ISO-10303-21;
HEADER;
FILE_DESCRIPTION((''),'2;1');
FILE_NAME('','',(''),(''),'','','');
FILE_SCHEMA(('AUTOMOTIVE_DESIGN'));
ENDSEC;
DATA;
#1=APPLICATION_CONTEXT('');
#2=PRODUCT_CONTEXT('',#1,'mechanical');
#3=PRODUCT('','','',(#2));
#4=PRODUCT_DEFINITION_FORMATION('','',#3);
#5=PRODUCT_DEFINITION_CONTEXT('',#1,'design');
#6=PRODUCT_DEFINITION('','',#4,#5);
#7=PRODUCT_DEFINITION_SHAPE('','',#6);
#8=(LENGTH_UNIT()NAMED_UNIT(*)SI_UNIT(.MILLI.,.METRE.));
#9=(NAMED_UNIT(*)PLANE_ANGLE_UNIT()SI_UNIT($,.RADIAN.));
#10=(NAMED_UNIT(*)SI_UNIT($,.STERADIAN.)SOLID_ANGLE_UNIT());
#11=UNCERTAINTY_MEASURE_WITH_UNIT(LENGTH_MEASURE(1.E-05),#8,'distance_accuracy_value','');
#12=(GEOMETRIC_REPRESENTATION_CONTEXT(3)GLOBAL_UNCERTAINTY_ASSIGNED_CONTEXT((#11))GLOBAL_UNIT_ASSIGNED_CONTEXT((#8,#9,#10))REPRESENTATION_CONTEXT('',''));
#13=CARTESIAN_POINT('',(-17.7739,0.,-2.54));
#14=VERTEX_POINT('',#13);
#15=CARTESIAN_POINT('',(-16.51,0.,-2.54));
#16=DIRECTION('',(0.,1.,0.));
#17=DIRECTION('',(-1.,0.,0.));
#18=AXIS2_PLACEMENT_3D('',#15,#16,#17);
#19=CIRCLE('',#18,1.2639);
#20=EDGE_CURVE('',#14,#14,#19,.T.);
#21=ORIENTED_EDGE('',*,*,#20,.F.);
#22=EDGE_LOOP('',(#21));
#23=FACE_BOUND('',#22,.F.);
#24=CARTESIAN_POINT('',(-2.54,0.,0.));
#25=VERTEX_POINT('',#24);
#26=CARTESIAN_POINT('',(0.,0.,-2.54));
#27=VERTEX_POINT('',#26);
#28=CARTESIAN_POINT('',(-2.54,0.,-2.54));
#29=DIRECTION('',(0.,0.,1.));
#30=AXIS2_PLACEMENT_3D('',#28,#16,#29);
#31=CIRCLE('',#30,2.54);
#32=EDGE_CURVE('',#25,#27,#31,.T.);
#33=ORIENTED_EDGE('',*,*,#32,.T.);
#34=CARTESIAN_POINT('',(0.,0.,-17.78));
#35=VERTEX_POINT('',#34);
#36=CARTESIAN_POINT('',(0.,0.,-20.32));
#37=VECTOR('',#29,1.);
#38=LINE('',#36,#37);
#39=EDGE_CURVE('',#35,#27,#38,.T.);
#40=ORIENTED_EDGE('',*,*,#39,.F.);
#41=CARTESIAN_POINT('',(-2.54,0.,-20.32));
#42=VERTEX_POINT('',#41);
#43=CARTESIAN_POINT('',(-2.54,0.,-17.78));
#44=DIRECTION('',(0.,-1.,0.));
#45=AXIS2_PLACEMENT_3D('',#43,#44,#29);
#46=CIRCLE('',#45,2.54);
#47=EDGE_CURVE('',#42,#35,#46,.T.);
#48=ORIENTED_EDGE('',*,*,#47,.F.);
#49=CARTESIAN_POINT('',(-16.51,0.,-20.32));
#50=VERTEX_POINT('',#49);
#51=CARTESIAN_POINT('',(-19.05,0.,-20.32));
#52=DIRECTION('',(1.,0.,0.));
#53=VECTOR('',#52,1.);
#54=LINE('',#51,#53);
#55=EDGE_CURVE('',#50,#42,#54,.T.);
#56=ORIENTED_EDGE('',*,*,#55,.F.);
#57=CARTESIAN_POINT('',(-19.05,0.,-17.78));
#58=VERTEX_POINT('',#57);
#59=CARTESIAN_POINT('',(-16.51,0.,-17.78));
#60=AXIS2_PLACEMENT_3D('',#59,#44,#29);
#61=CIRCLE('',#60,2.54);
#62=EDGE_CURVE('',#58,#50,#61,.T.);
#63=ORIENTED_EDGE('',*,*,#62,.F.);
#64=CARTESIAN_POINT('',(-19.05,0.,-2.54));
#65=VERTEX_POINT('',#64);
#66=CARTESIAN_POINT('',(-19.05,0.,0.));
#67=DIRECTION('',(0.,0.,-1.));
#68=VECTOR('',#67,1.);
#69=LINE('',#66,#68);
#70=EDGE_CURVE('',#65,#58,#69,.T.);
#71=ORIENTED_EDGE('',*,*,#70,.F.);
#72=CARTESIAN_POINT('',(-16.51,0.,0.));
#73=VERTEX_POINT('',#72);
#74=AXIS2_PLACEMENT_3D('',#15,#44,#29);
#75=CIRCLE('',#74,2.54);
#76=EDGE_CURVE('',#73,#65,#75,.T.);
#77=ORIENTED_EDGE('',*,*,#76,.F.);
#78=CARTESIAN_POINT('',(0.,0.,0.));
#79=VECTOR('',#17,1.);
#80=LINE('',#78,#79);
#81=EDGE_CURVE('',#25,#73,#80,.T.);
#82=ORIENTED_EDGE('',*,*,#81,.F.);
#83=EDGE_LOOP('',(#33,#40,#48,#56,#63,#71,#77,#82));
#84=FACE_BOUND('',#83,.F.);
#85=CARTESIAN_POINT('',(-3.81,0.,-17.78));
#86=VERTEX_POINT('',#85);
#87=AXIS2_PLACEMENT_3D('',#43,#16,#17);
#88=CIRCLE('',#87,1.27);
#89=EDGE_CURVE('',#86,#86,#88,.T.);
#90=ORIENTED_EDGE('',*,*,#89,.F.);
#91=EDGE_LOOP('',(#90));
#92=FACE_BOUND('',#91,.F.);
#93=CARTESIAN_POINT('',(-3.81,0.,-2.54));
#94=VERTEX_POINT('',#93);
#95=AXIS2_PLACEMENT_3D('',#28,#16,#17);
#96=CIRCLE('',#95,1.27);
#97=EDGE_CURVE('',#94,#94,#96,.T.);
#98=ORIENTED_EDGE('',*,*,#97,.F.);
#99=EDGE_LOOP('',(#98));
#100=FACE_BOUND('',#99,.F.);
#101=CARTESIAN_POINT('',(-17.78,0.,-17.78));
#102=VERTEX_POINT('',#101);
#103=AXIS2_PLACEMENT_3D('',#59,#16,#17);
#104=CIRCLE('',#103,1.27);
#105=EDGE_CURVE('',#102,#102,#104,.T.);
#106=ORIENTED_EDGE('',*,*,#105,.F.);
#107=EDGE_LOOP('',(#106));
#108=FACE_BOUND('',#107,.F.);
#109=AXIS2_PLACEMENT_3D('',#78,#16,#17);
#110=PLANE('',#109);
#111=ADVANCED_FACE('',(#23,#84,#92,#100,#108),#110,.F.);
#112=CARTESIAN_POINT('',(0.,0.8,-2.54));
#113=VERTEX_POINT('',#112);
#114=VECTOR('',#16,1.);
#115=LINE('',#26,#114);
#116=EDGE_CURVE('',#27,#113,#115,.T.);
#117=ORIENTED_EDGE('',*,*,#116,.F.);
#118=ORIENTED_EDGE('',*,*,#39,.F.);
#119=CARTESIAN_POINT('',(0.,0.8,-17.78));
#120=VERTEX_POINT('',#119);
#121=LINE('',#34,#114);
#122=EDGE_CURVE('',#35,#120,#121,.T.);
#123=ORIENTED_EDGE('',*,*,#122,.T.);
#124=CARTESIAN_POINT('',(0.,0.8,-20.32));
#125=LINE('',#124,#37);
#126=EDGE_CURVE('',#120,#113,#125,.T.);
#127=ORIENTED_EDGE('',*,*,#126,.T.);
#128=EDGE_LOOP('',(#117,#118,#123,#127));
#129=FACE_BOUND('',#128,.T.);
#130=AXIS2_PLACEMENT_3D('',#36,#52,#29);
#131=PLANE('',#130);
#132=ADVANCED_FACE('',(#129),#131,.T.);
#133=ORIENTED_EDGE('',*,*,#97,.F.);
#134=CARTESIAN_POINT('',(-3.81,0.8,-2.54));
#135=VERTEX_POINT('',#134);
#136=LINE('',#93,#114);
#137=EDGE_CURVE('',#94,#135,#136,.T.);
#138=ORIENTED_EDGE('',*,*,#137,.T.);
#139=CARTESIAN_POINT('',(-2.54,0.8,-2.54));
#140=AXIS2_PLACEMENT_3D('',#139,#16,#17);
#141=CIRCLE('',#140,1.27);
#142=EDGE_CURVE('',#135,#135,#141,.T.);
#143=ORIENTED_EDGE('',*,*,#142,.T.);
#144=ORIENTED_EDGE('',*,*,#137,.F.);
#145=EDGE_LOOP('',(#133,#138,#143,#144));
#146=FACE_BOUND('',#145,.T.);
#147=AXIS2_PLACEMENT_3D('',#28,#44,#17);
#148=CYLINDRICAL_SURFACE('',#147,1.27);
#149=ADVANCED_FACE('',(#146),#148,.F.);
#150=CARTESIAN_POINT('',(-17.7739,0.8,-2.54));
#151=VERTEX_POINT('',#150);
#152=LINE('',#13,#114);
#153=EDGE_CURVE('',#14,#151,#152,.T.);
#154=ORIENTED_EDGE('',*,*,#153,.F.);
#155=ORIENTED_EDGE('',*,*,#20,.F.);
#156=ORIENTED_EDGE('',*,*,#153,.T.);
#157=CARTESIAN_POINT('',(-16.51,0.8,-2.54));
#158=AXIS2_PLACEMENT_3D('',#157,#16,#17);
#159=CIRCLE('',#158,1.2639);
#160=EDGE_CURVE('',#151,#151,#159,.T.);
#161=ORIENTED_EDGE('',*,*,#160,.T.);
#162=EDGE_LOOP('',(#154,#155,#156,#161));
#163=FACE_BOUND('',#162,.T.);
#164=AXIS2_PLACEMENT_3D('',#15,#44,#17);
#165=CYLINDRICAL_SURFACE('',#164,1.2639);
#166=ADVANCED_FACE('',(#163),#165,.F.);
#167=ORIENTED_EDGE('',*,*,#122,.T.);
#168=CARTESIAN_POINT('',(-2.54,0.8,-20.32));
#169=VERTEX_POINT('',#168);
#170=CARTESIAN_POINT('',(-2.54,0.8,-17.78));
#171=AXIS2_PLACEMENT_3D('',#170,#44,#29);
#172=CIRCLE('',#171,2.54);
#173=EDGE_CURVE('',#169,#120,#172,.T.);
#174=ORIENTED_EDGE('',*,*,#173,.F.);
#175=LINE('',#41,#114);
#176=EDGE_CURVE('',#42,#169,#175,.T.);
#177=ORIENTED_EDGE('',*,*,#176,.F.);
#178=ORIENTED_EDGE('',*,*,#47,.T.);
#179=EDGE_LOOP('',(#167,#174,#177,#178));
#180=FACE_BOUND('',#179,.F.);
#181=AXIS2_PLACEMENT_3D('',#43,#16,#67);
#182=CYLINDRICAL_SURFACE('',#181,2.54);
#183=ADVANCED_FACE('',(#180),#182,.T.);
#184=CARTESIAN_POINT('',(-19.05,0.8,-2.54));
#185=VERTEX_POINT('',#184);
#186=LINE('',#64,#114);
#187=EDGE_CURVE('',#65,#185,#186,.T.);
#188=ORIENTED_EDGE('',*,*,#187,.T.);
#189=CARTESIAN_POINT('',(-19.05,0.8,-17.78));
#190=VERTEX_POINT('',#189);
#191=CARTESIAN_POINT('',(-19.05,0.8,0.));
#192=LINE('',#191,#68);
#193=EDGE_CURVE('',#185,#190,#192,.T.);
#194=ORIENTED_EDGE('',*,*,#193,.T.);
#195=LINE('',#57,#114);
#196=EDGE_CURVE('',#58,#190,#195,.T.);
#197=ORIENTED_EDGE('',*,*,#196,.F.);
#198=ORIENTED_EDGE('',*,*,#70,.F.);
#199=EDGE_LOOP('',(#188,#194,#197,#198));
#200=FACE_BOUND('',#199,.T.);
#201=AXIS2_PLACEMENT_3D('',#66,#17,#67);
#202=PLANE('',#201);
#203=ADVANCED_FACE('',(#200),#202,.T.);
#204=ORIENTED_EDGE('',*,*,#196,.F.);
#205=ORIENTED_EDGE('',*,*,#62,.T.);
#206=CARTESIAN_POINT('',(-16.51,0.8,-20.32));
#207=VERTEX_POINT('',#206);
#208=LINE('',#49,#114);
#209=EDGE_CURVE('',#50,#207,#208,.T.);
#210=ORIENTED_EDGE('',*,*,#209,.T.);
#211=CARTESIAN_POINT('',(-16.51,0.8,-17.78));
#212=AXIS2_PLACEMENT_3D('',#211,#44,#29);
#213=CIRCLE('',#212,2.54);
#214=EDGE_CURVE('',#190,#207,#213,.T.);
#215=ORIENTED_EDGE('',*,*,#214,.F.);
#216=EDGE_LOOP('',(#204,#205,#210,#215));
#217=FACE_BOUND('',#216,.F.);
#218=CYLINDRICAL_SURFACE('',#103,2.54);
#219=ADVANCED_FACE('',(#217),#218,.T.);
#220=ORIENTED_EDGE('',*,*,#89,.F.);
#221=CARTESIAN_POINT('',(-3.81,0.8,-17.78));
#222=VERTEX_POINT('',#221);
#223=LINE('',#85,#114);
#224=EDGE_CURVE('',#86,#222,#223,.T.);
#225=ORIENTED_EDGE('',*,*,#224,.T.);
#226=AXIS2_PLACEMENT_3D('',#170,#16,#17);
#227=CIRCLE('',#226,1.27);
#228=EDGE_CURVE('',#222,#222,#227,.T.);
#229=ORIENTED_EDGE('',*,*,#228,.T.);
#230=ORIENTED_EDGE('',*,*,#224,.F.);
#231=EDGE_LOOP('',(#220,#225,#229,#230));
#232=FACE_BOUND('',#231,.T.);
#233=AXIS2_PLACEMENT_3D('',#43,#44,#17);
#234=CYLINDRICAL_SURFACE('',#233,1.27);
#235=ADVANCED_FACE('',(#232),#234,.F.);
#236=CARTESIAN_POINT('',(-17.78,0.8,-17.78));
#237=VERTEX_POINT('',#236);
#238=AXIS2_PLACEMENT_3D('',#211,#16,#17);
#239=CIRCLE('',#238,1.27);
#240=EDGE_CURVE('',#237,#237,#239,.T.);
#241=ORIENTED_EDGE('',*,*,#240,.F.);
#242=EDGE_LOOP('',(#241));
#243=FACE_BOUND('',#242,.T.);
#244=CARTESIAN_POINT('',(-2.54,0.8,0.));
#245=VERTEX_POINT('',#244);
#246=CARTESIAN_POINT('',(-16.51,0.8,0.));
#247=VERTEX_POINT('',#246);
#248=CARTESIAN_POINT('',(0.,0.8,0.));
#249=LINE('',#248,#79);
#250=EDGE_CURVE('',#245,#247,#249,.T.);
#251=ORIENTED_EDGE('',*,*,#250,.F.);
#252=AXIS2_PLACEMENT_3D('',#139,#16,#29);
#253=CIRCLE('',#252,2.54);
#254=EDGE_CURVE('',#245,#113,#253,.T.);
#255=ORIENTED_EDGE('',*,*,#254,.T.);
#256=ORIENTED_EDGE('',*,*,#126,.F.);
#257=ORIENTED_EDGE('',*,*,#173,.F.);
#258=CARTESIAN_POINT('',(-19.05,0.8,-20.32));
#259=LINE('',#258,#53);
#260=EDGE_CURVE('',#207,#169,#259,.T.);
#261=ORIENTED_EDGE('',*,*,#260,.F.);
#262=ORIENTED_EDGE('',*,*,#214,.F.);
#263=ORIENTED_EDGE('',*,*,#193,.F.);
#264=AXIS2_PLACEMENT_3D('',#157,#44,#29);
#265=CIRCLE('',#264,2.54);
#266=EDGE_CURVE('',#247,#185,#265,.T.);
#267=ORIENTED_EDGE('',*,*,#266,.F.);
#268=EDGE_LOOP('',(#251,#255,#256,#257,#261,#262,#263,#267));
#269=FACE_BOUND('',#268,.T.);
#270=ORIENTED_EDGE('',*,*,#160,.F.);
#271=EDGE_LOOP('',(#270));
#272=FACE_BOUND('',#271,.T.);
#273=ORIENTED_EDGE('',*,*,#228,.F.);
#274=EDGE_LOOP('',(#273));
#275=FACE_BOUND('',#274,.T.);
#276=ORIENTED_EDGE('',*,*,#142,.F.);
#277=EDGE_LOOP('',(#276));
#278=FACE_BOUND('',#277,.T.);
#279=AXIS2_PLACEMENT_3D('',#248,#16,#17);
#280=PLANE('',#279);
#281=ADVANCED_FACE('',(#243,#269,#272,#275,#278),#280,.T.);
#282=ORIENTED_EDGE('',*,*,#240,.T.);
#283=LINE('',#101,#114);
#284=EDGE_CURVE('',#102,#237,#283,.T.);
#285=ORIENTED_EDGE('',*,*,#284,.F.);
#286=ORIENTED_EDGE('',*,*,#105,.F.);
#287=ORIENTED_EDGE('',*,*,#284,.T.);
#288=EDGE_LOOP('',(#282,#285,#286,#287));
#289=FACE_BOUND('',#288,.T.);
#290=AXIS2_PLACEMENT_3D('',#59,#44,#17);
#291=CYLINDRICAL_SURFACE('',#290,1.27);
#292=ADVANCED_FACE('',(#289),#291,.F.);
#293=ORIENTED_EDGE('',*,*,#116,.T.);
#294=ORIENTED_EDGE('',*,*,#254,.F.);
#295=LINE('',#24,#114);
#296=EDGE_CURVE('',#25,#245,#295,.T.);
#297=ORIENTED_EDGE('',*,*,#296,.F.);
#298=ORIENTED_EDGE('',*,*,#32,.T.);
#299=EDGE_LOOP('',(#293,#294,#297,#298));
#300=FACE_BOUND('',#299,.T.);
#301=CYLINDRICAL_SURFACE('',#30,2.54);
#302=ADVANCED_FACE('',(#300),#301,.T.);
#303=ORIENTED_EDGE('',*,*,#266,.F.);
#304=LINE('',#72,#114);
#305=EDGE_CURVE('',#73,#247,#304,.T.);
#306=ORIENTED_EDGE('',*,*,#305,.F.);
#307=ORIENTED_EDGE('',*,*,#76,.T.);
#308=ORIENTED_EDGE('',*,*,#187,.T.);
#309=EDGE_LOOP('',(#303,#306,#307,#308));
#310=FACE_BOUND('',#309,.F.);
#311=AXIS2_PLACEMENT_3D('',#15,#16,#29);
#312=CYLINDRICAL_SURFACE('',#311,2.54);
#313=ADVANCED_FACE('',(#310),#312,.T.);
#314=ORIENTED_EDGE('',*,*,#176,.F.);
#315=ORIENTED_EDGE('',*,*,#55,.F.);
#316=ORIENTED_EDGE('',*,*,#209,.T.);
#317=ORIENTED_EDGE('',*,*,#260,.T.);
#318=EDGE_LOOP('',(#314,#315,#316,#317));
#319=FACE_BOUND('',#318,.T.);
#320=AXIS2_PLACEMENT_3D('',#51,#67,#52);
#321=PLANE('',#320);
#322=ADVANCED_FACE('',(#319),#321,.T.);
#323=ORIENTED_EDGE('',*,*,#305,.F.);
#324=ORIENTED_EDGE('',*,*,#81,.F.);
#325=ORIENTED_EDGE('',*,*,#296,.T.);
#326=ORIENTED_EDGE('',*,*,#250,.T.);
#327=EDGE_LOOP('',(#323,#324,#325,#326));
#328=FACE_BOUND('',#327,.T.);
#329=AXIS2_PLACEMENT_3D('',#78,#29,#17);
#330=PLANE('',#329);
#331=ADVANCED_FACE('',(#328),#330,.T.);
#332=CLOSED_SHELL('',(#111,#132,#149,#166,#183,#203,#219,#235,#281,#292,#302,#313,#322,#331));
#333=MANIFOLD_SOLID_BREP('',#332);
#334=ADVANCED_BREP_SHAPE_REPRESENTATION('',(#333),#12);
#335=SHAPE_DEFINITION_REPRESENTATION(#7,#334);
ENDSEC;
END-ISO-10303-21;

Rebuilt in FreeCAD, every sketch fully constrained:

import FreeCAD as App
import Part
import Sketcher

V = App.Vector
Q = App.Units.Quantity


def edges_at(feature, points):
    """Names of the edges that pass closest to the given points."""
    edges = feature.Shape.Edges
    near = lambda p: min(range(len(edges)), key=lambda i: edges[i].distToShape(Part.Vertex(*p))[0])
    return sorted({f"Edge{near(p) + 1}" for p in points})

doc = App.newDocument("Part")
body = doc.addObject("PartDesign::Body", "Body")

sketch1 = body.newObject("Sketcher::SketchObject", "Sketch")
sketch1.AttachmentSupport = (doc.getObject("XZ_Plane"), [""])
sketch1.MapMode = "FlatFace"
sketch1.addGeometry([
    Part.LineSegment(V(-19.1, 0, 0), V(0, 0, 0)),
    Part.LineSegment(V(0, 0, 0), V(0, -20.3, 0)),
    Part.LineSegment(V(0, -20.3, 0), V(-19.1, -20.3, 0)),
    Part.LineSegment(V(-19.1, -20.3, 0), V(-19.1, 0, 0)),
    Part.Circle(V(-2.5, -17.8, 0), V(0, 0, 1), 1.3),
    Part.Circle(V(-16.5, -17.8, 0), V(0, 0, 1), 1.3),
    Part.Circle(V(-2.5, -2.5, 0), V(0, 0, 1), 1.3),
    Part.Circle(V(-16.5, -2.5, 0), V(0, 0, 1), 1.3),
], False)
sketch1.addConstraint([
    Sketcher.Constraint("Coincident", 0, 2, 1, 1),
    Sketcher.Constraint("Coincident", 1, 2, 2, 1),
    Sketcher.Constraint("Coincident", 2, 2, 3, 1),
    Sketcher.Constraint("Coincident", 3, 2, 0, 1),
    Sketcher.Constraint("Horizontal", 0),
    Sketcher.Constraint("Vertical", 1),
    Sketcher.Constraint("Horizontal", 2),
    Sketcher.Constraint("Vertical", 3),
    Sketcher.Constraint("Coincident", 0, 2, -1, 1),
    Sketcher.Constraint("Equal", 4, 5),
    Sketcher.Constraint("Equal", 5, 6),
    Sketcher.Constraint("Horizontal", 4, 3, 5, 3),
    Sketcher.Constraint("Horizontal", 6, 3, 7, 3),
    Sketcher.Constraint("Vertical", 4, 3, 6, 3),
    Sketcher.Constraint("Vertical", 5, 3, 7, 3),
    Sketcher.Constraint("Diameter", 4, Q("0.1 in")),
    Sketcher.Constraint("DistanceY", 1, 2, 1, 1, Q("0.8 in")),
    Sketcher.Constraint("DistanceX", 0, 1, 0, 2, Q("0.75 in")),
    Sketcher.Constraint("DistanceX", 4, 3, -1, 1, Q("0.1 in")),
    Sketcher.Constraint("DistanceY", 6, 3, -1, 1, Q("0.1 in")),
    Sketcher.Constraint("DistanceY", 4, 3, 6, 3, Q("0.6 in")),
    Sketcher.Constraint("DistanceX", 2, 2, 5, 3, Q("0.1 in")),
    Sketcher.Constraint("Diameter", 7, Q("2.5278 mm")),
])
pad1 = body.newObject("PartDesign::Pad", "Pad")
pad1.Profile = sketch1
pad1.Length = Q("0.0314961 in")
pad1.Reversed = True
doc.recompute()

fillet = body.newObject("PartDesign::Fillet", "Fillet")
fillet.Base = (pad1, edges_at(pad1, [
    (0, 0.4, 0),
    (0, 0.4, -20.32),
    (-19.05, 0.4, -20.32),
    (-19.05, 0.4, 0),
]))
fillet.Radius = Q("0.1 in")

doc.recompute()
